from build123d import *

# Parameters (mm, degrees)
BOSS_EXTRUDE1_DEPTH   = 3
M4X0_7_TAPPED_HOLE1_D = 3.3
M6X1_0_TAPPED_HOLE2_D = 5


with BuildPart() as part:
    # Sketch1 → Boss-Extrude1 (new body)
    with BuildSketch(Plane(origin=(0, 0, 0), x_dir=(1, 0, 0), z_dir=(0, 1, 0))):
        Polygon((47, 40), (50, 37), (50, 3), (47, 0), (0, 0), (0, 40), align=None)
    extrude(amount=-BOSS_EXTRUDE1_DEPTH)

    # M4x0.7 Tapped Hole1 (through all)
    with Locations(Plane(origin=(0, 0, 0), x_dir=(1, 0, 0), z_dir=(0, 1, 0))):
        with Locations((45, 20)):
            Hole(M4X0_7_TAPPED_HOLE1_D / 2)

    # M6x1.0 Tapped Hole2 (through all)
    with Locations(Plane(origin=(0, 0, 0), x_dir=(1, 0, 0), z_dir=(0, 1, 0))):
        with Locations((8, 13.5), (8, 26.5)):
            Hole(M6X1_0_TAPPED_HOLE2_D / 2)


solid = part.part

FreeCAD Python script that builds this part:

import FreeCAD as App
import Part
import Sketcher

V = App.Vector
Q = App.Units.Quantity

doc = App.newDocument("Part")
body = doc.addObject("PartDesign::Body", "Body")

sketch1 = body.newObject("Sketcher::SketchObject", "Sketch")
sketch1.AttachmentSupport = (doc.getObject("XZ_Plane"), [""])
sketch1.MapMode = "FlatFace"
sketch1.addGeometry(Part.LineSegment(V(50, -37, 0), V(47, -40, 0)), False)
sketch1.addGeometry(Part.LineSegment(V(47, -40, 0), V(0, -40, 0)), False)
sketch1.addGeometry(Part.LineSegment(V(0, -40, 0), V(0, 0, 0)), False)
sketch1.addGeometry(Part.LineSegment(V(0, 0, 0), V(47, 0, 0)), False)
sketch1.addGeometry(Part.LineSegment(V(47, 0, 0), V(50, -3, 0)), False)
sketch1.addGeometry(Part.LineSegment(V(50, -3, 0), V(50, -37, 0)), False)
sketch1.addConstraint(Sketcher.Constraint("Coincident", 0, 2, 1, 1))
sketch1.addConstraint(Sketcher.Constraint("Coincident", 1, 2, 2, 1))
sketch1.addConstraint(Sketcher.Constraint("Coincident", 2, 2, 3, 1))
sketch1.addConstraint(Sketcher.Constraint("Coincident", 3, 2, 4, 1))
sketch1.addConstraint(Sketcher.Constraint("Coincident", 4, 2, 5, 1))
sketch1.addConstraint(Sketcher.Constraint("Coincident", 5, 2, 0, 1))
sketch1.addConstraint(Sketcher.Constraint("Horizontal", 1))
sketch1.addConstraint(Sketcher.Constraint("Vertical", 2))
sketch1.addConstraint(Sketcher.Constraint("Horizontal", 3))
sketch1.addConstraint(Sketcher.Constraint("Vertical", 5))
sketch1.addConstraint(Sketcher.Constraint("Coincident", 2, 2, -1, 1))
sketch1.addConstraint(Sketcher.Constraint("Perpendicular", 0, 4))
sketch1.addConstraint(Sketcher.Constraint("Vertical", 0, 2, 3, 2))
sketch1.addConstraint(Sketcher.Constraint("Equal", 0, 4))
sketch1.addConstraint(Sketcher.Constraint("DistanceX", 1, 2, 1, 1, Q("47 mm")))
sketch1.addConstraint(Sketcher.Constraint("DistanceY", 2, 1, 2, 2, Q("40 mm")))
sketch1.addConstraint(Sketcher.Constraint("DistanceY", 5, 2, 5, 1, Q("34 mm")))
pad1 = body.newObject("PartDesign::Pad", "Pad")
pad1.Profile = sketch1
pad1.Length = 3

sketch2 = body.newObject("Sketcher::SketchObject", "Sketch001")
sketch2.AttachmentSupport = (doc.getObject("XZ_Plane"), [""])
sketch2.MapMode = "FlatFace"
sketch2.addGeometry(Part.Circle(V(45, -20, 0), V(0, 0, 1), 1.6), False)
sketch2.addConstraint(Sketcher.Constraint("Diameter", 0, Q("3.3 mm")))
sketch2.addConstraint(Sketcher.Constraint("DistanceX", -1, 1, 0, 3, Q("45 mm")))
sketch2.addConstraint(Sketcher.Constraint("DistanceY", 0, 3, -1, 1, Q("20 mm")))
doc.recompute()
hole = body.newObject("PartDesign::Hole", "Hole")
hole.Profile = sketch2
hole.ThreadType = "None"
hole.Diameter = 3.3
hole.DepthType = "ThroughAll"
hole.Reversed = True

sketch3 = body.newObject("Sketcher::SketchObject", "Sketch002")
sketch3.AttachmentSupport = (doc.getObject("XZ_Plane"), [""])
sketch3.MapMode = "FlatFace"
sketch3.addGeometry(Part.Circle(V(8, -13.5, 0), V(0, 0, 1), 2.5), False)
sketch3.addGeometry(Part.Circle(V(8, -26.5, 0), V(0, 0, 1), 2.5), False)
sketch3.addConstraint(Sketcher.Constraint("Equal", 0, 1))
sketch3.addConstraint(Sketcher.Constraint("Vertical", 0, 3, 1, 3))
sketch3.addConstraint(Sketcher.Constraint("Diameter", 0, Q("5 mm")))
sketch3.addConstraint(Sketcher.Constraint("DistanceX", -1, 1, 0, 3, Q("8 mm")))
sketch3.addConstraint(Sketcher.Constraint("DistanceY", 1, 3, 0, 3, Q("13 mm")))
sketch3.addConstraint(Sketcher.Constraint("DistanceY", 0, 3, -1, 1, Q("13.5 mm")))
doc.recompute()
hole2 = body.newObject("PartDesign::Hole", "Hole001")
hole2.Profile = sketch3
hole2.ThreadType = "None"
hole2.Diameter = 5
hole2.DepthType = "ThroughAll"
hole2.Reversed = True

doc.recompute()
